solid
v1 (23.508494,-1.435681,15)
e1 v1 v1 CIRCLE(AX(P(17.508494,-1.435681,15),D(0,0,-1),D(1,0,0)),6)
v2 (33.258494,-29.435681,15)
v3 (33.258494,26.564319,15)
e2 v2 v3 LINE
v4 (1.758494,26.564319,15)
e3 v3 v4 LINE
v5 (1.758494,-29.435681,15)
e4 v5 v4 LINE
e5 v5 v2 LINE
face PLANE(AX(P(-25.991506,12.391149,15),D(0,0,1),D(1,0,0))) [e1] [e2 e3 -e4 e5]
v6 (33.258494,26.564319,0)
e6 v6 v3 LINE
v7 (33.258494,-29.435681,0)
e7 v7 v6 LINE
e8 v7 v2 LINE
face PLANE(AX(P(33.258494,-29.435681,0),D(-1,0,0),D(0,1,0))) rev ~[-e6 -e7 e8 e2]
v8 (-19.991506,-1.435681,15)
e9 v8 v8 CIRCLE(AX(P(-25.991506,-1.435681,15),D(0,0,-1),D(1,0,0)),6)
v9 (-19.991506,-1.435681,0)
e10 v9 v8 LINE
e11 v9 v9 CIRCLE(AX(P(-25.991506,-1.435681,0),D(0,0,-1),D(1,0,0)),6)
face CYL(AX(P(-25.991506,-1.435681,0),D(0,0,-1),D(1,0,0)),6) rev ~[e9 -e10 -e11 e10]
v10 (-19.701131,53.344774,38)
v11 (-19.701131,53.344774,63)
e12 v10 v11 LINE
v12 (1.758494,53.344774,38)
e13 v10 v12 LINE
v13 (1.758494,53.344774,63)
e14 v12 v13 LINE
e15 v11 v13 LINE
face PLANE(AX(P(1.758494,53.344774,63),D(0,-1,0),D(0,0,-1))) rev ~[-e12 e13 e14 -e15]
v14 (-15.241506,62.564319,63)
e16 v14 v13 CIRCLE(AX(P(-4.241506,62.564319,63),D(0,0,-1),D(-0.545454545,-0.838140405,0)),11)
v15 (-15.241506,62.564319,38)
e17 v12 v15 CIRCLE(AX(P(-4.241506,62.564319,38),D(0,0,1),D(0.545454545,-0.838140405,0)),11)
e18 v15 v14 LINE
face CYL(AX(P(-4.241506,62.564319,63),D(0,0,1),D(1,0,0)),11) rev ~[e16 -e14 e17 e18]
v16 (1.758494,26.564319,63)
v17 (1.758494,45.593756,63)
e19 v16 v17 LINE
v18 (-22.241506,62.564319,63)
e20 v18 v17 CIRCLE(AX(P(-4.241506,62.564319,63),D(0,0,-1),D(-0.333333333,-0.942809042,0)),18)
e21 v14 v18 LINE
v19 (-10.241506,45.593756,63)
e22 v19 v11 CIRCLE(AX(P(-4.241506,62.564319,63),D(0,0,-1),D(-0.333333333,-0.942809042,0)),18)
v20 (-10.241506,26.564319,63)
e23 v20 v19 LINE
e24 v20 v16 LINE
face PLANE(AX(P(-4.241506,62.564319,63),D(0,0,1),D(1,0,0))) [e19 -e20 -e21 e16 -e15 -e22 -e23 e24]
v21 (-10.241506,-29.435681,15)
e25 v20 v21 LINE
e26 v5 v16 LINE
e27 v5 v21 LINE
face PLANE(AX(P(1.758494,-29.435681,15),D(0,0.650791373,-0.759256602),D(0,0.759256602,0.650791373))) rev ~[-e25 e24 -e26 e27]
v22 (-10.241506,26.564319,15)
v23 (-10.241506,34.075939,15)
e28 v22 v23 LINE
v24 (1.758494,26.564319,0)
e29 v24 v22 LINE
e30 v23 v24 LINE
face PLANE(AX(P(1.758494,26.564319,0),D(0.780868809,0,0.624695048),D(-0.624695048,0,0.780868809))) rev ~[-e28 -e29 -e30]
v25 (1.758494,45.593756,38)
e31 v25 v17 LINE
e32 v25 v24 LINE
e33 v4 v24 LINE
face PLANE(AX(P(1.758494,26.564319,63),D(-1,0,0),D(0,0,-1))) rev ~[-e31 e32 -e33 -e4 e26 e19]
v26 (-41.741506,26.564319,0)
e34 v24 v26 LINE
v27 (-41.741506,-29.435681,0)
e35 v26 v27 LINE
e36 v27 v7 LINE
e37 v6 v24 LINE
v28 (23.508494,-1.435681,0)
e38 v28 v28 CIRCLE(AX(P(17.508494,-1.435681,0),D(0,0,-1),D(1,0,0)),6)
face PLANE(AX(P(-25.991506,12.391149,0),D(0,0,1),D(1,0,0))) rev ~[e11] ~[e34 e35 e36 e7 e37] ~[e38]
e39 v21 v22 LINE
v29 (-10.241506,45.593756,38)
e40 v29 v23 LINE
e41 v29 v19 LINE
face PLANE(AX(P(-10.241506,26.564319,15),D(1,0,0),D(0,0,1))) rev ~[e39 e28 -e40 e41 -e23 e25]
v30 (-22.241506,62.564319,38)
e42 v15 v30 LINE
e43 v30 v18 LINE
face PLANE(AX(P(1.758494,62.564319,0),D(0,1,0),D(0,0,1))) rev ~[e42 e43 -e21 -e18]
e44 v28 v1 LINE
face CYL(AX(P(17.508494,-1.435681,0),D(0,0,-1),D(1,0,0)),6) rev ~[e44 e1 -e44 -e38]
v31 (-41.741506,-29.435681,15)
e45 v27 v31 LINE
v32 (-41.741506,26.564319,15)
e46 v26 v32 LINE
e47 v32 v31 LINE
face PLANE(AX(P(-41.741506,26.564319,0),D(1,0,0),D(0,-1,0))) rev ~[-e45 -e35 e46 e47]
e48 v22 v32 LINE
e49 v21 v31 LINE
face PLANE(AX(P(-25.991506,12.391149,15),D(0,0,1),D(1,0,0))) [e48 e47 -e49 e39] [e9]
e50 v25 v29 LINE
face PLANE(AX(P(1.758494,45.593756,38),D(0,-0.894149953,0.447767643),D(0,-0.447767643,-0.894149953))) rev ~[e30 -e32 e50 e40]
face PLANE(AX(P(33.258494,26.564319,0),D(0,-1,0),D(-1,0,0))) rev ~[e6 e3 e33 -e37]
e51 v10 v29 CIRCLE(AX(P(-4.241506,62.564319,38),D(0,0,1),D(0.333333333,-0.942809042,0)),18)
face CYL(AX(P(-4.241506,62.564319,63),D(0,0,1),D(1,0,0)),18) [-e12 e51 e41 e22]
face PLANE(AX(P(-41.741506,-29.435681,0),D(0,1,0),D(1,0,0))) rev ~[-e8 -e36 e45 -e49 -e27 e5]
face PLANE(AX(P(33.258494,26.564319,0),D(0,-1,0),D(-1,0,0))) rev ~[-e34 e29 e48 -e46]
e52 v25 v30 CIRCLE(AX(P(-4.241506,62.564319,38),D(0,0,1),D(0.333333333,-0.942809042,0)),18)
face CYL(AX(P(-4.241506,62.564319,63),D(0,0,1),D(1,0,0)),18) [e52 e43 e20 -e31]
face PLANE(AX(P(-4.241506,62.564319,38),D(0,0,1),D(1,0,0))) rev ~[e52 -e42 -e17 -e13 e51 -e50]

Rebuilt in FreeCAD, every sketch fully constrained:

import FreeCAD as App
import Part
import Sketcher
from FreeCAD import Vector


def add_polygon(sketch, points):
    """Adds a closed chain of lines whose ends are joined by coincident constraints."""
    first, n = sketch.GeometryCount, len(points)
    for a, b in zip(points, points[1:] + points[:1]):
        sketch.addGeometry(Part.LineSegment(App.Vector(*a, 0), App.Vector(*b, 0)), False)
    for i in range(n):
        sketch.addConstraint(Sketcher.Constraint("Coincident", first + i, 2, first + (i + 1) % n, 1))

doc = App.newDocument("Part")
body = doc.addObject("PartDesign::Body", "Body")

sketch1 = body.newObject("Sketcher::SketchObject", "Sketch")
sketch1.AttachmentSupport = (doc.getObject("XY_Plane"), [""])
sketch1.MapMode = "FlatFace"
add_polygon(sketch1, [(-42, 27), (-42, -29), (33, -29), (33, 27)])
sketch1.addGeometry(Part.Circle(Vector(18, -1, 0), Vector(0, 0, 1), 6), False)
sketch1.addGeometry(Part.Circle(Vector(-26, -1, 0), Vector(0, 0, 1), 6), False)
sketch1.addConstraint([
    Sketcher.Constraint("Vertical", 0),
    Sketcher.Constraint("Horizontal", 1),
    Sketcher.Constraint("Vertical", 2),
    Sketcher.Constraint("Horizontal", 3),
    Sketcher.Constraint("Equal", 4, 5),
    Sketcher.Constraint("Horizontal", 4, 3, 5, 3),
    Sketcher.Constraint("Diameter", 4, 12.0),
    Sketcher.Constraint("DistanceX", 1, 1, 1, 2, 75.0),
    Sketcher.Constraint("DistanceY", 0, 2, 0, 1, 56.0),
    Sketcher.Constraint("DistanceY", 0, 2, 5, 3, 28.0),
    Sketcher.Constraint("DistanceX", 5, 3, 4, 3, 43.5),
    Sketcher.Constraint("DistanceX", 0, 2, 5, 3, 15.75),
    Sketcher.Constraint("DistanceY", 4, 3, -1, 1, 1.435681),
    Sketcher.Constraint("DistanceX", -1, 1, 4, 3, 17.508494),
])
pad1 = body.newObject("PartDesign::Pad", "Pad")
pad1.Profile = sketch1
pad1.Length = 15

sketch2 = body.newObject("Sketcher::SketchObject", "Sketch001")
sketch2.AttachmentSupport = (doc.getObject("XY_Plane"), [""])
sketch2.MapMode = "FlatFace"
sketch2.AttachmentOffset = App.Placement(Vector(0, 0, 15), App.Rotation())
add_polygon(sketch2, [(-10, 27), (-10, -29), (2, -29), (2, 27)])
sketch2.addConstraint([
    Sketcher.Constraint("Vertical", 0),
    Sketcher.Constraint("Horizontal", 1),
    Sketcher.Constraint("Vertical", 2),
    Sketcher.Constraint("Horizontal", 3),
    Sketcher.Constraint("DistanceX", 1, 1, 1, 2, 12.0),
    Sketcher.Constraint("DistanceY", 0, 2, 0, 1, 56.0),
    Sketcher.Constraint("DistanceY", 0, 2, -1, 1, 29.435681),
    Sketcher.Constraint("DistanceX", 0, 2, -1, 1, 10.241506),
])
pad2 = body.newObject("PartDesign::Pad", "Pad001")
pad2.Profile = sketch2
pad2.Length = 48

sketch3 = body.newObject("Sketcher::SketchObject", "Sketch002")
sketch3.AttachmentSupport = (doc.getObject("YZ_Plane"), [""])
sketch3.MapMode = "FlatFace"
sketch3.AttachmentOffset = App.Placement(Vector(0, 0, 1.758494), App.Rotation())
add_polygon(sketch3, [(-29, 15), (27, 63), (-29, 63)])
sketch3.addConstraint([
    Sketcher.Constraint("Horizontal", 1),
    Sketcher.Constraint("Vertical", 2),
    Sketcher.Constraint("DistanceX", 1, 2, 1, 1, 56.0),
    Sketcher.Constraint("DistanceY", 2, 2, 2, 1, 48.0),
    Sketcher.Constraint("DistanceY", -1, 1, 0, 2, 63.0),
    Sketcher.Constraint("DistanceX", -1, 1, 0, 2, 26.564319),
])
pocket1 = body.newObject("PartDesign::Pocket", "Pocket")
pocket1.Profile = sketch3
pocket1.Length = 25

sketch4 = body.newObject("Sketcher::SketchObject", "Sketch003")
sketch4.AttachmentSupport = (doc.getObject("XZ_Plane"), [""])
sketch4.MapMode = "FlatFace"
sketch4.AttachmentOffset = App.Placement(Vector(0, 0, -26.564319), App.Rotation())
add_polygon(sketch4, [(2, 63), (2, 0), (-10, 15), (-10, 63)])
sketch4.addConstraint([
    Sketcher.Constraint("Vertical", 0),
    Sketcher.Constraint("Vertical", 2),
    Sketcher.Constraint("Horizontal", 3),
    Sketcher.Constraint("PointOnObject", 0, 2, -1),
    Sketcher.Constraint("DistanceX", 3, 1, 3, 2, 12.0),
    Sketcher.Constraint("DistanceY", 0, 2, 0, 1, 63.0),
    Sketcher.Constraint("DistanceY", 2, 1, 2, 2, 48.0),
    Sketcher.Constraint("DistanceX", -1, 1, 0, 2, 1.758494),
])
pad3 = body.newObject("PartDesign::Pad", "Pad002")
pad3.Profile = sketch4
pad3.Length = 36
pad3.Reversed = True

sketch5 = body.newObject("Sketcher::SketchObject", "Sketch004")
sketch5.AttachmentSupport = (doc.getObject("XY_Plane"), [""])
sketch5.MapMode = "FlatFace"
sketch5.AttachmentOffset = App.Placement(Vector(0, 0, 63), App.Rotation())
sketch5.addGeometry([
    Part.Circle(Vector(-4, 63, 0), Vector(0, 0, 1), 18),
    Part.Circle(Vector(-4, 63, 0), Vector(0, 0, 1), 11),
], False)
sketch5.addConstraint([
    Sketcher.Constraint("Coincident", 1, 3, 0, 3),
    Sketcher.Constraint("Diameter", 0, 36.0),
    Sketcher.Constraint("Diameter", 1, 22.0),
    Sketcher.Constraint("DistanceY", -1, 1, 0, 3, 62.564319),
    Sketcher.Constraint("DistanceX", 0, 3, -1, 1, 4.241506),
])
pad4 = body.newObject("PartDesign::Pad", "Pad003")
pad4.Profile = sketch5
pad4.Length = 25
pad4.Reversed = True

sketch6 = body.newObject("Sketcher::SketchObject", "Sketch005")
sketch6.AttachmentSupport = (doc.getObject("YZ_Plane"), [""])
sketch6.MapMode = "FlatFace"
sketch6.AttachmentOffset = App.Placement(Vector(0, 0, 1.758494), App.Rotation())
add_polygon(sketch6, [(46, 38), (27, 0), (63, 0), (63, 63), (53, 63), (53, 38)])
sketch6.addConstraint([
    Sketcher.Constraint("Horizontal", 1),
    Sketcher.Constraint("Vertical", 2),
    Sketcher.Constraint("Horizontal", 3),
    Sketcher.Constraint("Vertical", 4),
    Sketcher.Constraint("Horizontal", 5),
    Sketcher.Constraint("PointOnObject", 0, 2, -1),
    Sketcher.Constraint("DistanceX", 1, 1, 1, 2, 36.0),
    Sketcher.Constraint("DistanceY", 2, 1, 2, 2, 63.0),
    Sketcher.Constraint("DistanceY", 4, 2, 4, 1, 25.0),
    Sketcher.Constraint("DistanceX", 5, 2, 5, 1, 7.751018),
    Sketcher.Constraint("DistanceX", 3, 2, 3, 1, 9.219544),
    Sketcher.Constraint("DistanceX", -1, 1, 0, 2, 26.564319),
])
pocket2 = body.newObject("PartDesign::Pocket", "Pocket001")
pocket2.Profile = sketch6
pocket2.Length = 25

doc.recompute()
